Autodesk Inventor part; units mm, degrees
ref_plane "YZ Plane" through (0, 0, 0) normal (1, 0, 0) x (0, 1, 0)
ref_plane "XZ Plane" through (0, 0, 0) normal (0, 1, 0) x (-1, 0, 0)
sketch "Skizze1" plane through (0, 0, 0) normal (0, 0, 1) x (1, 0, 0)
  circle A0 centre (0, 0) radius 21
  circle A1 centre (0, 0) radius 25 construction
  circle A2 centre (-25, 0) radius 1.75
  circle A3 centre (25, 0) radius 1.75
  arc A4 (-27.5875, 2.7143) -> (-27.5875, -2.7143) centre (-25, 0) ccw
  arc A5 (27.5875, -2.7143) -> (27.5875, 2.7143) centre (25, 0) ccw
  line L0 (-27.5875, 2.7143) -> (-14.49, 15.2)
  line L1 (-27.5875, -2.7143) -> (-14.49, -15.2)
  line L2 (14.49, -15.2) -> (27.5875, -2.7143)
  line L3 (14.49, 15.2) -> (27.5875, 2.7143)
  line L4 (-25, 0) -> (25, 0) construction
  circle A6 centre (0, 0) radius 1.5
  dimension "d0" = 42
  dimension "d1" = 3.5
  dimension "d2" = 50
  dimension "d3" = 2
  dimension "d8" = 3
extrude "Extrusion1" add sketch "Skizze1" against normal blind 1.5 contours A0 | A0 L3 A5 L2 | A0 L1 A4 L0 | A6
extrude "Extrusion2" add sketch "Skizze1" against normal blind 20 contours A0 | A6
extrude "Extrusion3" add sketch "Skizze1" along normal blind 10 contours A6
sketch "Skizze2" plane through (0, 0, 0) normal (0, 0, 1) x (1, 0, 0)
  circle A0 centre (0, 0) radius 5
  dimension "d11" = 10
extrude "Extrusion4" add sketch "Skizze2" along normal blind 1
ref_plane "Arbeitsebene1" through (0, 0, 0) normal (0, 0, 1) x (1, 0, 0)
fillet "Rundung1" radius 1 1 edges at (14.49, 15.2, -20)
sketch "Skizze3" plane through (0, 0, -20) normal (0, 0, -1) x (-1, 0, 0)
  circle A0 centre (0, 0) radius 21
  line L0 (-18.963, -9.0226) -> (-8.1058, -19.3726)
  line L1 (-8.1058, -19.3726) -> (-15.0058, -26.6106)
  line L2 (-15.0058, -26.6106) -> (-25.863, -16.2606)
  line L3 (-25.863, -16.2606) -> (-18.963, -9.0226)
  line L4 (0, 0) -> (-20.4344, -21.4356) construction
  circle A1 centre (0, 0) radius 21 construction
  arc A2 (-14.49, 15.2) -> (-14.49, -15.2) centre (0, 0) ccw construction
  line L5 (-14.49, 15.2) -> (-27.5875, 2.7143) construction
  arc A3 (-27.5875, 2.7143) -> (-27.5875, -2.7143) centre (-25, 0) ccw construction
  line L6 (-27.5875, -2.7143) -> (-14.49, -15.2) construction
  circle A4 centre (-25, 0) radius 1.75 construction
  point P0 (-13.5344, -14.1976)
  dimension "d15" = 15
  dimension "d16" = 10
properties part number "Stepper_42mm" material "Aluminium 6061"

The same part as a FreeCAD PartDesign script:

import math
import FreeCAD as App
import Part
import Sketcher
Q = App.Units.Quantity


def edges_at(feature, points):
    """Names of the edges that pass closest to the given points."""
    edges = feature.Shape.Edges
    near = lambda p: min(range(len(edges)), key=lambda i: edges[i].distToShape(Part.Vertex(*p))[0])
    return sorted({f"Edge{near(p) + 1}" for p in points})

doc = App.newDocument("Part")
params = doc.addObject("Spreadsheet::Sheet", "Params")
for row, (alias, value) in enumerate([
    ("sketch1_radius", "21 mm"),
    ("sketch1_diameter", "3.5 mm"),
    ("sketch1_radius2", "3.75 mm"),
    ("pad1_length", "1.5 mm"),
    ("sketch2_diameter", "42 mm"),
    ("pad2_length", "20 mm"),
    ("sketch3_diameter", "3 mm"),
    ("pad3_length", "10 mm"),
    ("sketch4_diameter", "10 mm"),
    ("pad4_length", "1 mm"),
    ("fillet_radius", "1 mm"),
], start=1):
    params.set(f"A{row}", alias)
    params.set(f"B{row}", "=" + value)
    params.setAlias(f"B{row}", alias)

body = doc.addObject("PartDesign::Body", "Body")

sketch1 = body.newObject("Sketcher::SketchObject", "Sketch")
sketch1.AttachmentSupport = (doc.getObject("XY_Plane"), [""])
sketch1.MapMode = "FlatFace"
sketch1.addGeometry([
    Part.ArcOfCircle(Part.Circle(App.Vector(0, 0, 0), App.Vector(0, 0, 1), 21), math.radians(-134), math.radians(-46)),
    Part.LineSegment(App.Vector(14.5, -15.2, 0), App.Vector(27.6, -2.7, 0)),
    Part.ArcOfCircle(Part.Circle(App.Vector(25, 0, 0), App.Vector(0, 0, 1), 3.8), math.radians(-46), math.radians(46)),
    Part.LineSegment(App.Vector(27.6, 2.7, 0), App.Vector(14.5, 15.2, 0)),
    Part.ArcOfCircle(Part.Circle(App.Vector(0, 0, 0), App.Vector(0, 0, 1), 21), math.radians(46), math.radians(134)),
    Part.LineSegment(App.Vector(-14.5, 15.2, 0), App.Vector(-27.6, 2.7, 0)),
    Part.ArcOfCircle(Part.Circle(App.Vector(-25, 0, 0), App.Vector(0, 0, 1), 3.8), math.radians(134), math.radians(226)),
    Part.LineSegment(App.Vector(-27.6, -2.7, 0), App.Vector(-14.5, -15.2, 0)),
    Part.Circle(App.Vector(25, 0, 0), App.Vector(0, 0, 1), 1.8),
    Part.Circle(App.Vector(-25, 0, 0), App.Vector(0, 0, 1), 1.8),
], False)
sketch1.addConstraint([
    Sketcher.Constraint("Tangent", 0, 2, 1, 1),
    Sketcher.Constraint("Tangent", 1, 2, 2, 1),
    Sketcher.Constraint("Tangent", 2, 2, 3, 1),
    Sketcher.Constraint("Tangent", 3, 2, 4, 1),
    Sketcher.Constraint("Tangent", 4, 2, 5, 1),
    Sketcher.Constraint("Tangent", 5, 2, 6, 1),
    Sketcher.Constraint("Tangent", 6, 2, 7, 1),
    Sketcher.Constraint("Tangent", 7, 2, 0, 1),
    Sketcher.Constraint("Coincident", 0, 3, -1, 1),
    Sketcher.Constraint("Coincident", 4, 3, -1, 1),
    Sketcher.Constraint("Coincident", 8, 3, 2, 3),
    Sketcher.Constraint("Coincident", 9, 3, 6, 3),
    Sketcher.Constraint("Equal", 0, 4),
    Sketcher.Constraint("Equal", 2, 6),
    Sketcher.Constraint("Equal", 8, 9),
    Sketcher.Constraint("Symmetric", 2, 3, 6, 3, -1, 1),
    Sketcher.Constraint("PointOnObject", 2, 3, -1),
    Sketcher.Constraint("Radius", 0, Q("21 mm")),
    Sketcher.Constraint("Diameter", 8, Q("3.5 mm")),
    Sketcher.Constraint("DistanceX", 6, 3, 2, 3, Q("50 mm")),
    Sketcher.Constraint("Radius", 2, Q("3.75 mm")),
])
sketch1.setExpression("Constraints[17]", "Params.sketch1_radius")
sketch1.setExpression("Constraints[18]", "Params.sketch1_diameter")
sketch1.setExpression("Constraints[20]", "Params.sketch1_radius2")
pad1 = body.newObject("PartDesign::Pad", "Pad")
pad1.Profile = sketch1
pad1.setExpression("Length", "Params.pad1_length")
pad1.Reversed = True

sketch2 = body.newObject("Sketcher::SketchObject", "Sketch001")
sketch2.AttachmentSupport = (doc.getObject("XY_Plane"), [""])
sketch2.MapMode = "FlatFace"
sketch2.addGeometry(Part.Circle(App.Vector(0, 0, 0), App.Vector(0, 0, 1), 21), False)
sketch2.addConstraint([
    Sketcher.Constraint("Coincident", 0, 3, -1, 1),
    Sketcher.Constraint("Diameter", 0, Q("42 mm")),
])
sketch2.setExpression("Constraints[1]", "Params.sketch2_diameter")
pad2 = body.newObject("PartDesign::Pad", "Pad001")
pad2.Profile = sketch2
pad2.setExpression("Length", "Params.pad2_length")
pad2.Reversed = True

sketch3 = body.newObject("Sketcher::SketchObject", "Sketch002")
sketch3.AttachmentSupport = (doc.getObject("XY_Plane"), [""])
sketch3.MapMode = "FlatFace"
sketch3.addGeometry(Part.Circle(App.Vector(0, 0, 0), App.Vector(0, 0, 1), 1.5), False)
sketch3.addConstraint([
    Sketcher.Constraint("Coincident", 0, 3, -1, 1),
    Sketcher.Constraint("Diameter", 0, Q("3 mm")),
])
sketch3.setExpression("Constraints[1]", "Params.sketch3_diameter")
pad3 = body.newObject("PartDesign::Pad", "Pad002")
pad3.Profile = sketch3
pad3.setExpression("Length", "Params.pad3_length")

sketch4 = body.newObject("Sketcher::SketchObject", "Sketch003")
sketch4.AttachmentSupport = (doc.getObject("XY_Plane"), [""])
sketch4.MapMode = "FlatFace"
sketch4.addGeometry(Part.Circle(App.Vector(0, 0, 0), App.Vector(0, 0, 1), 5), False)
sketch4.addConstraint([
    Sketcher.Constraint("Coincident", 0, 3, -1, 1),
    Sketcher.Constraint("Diameter", 0, Q("10 mm")),
])
sketch4.setExpression("Constraints[1]", "Params.sketch4_diameter")
pad4 = body.newObject("PartDesign::Pad", "Pad003")
pad4.Profile = sketch4
pad4.setExpression("Length", "Params.pad4_length")
doc.recompute()

fillet = body.newObject("PartDesign::Fillet", "Fillet")
fillet.Base = (pad4, edges_at(pad4, [(14.49, 15.2, -20)]))
fillet.setExpression("Radius", "Params.fillet_radius")

doc.recompute()
